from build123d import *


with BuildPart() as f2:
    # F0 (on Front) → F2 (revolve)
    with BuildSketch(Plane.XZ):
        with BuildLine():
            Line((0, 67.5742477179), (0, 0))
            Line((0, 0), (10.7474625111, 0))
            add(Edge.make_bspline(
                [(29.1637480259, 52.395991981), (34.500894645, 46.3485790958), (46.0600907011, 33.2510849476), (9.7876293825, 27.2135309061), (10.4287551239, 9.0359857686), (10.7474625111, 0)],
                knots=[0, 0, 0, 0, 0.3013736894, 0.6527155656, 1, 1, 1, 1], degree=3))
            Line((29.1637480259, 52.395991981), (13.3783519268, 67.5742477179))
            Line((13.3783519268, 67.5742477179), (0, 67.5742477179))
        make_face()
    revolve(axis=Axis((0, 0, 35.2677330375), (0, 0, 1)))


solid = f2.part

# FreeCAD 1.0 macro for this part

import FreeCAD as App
import Part
import Sketcher
from FreeCAD import Vector
Q = App.Units.Quantity

doc = App.newDocument("Part")
body = doc.addObject("PartDesign::Body", "Body")

sketch1 = body.newObject("Sketcher::SketchObject", "Sketch")
sketch1.AttachmentSupport = (doc.getObject("XZ_Plane"), [""])
sketch1.MapMode = "FlatFace"
sketch1.addGeometry(Part.LineSegment(Vector(0, 67.574248, 0), Vector(0, 0, 0)), False)
sketch1.addGeometry(Part.LineSegment(Vector(0, 0, 0), Vector(10.747463, 0, 0)), False)
sketch1.addGeometry(Part.BSplineCurve([Vector(29.163748, 52.395992, 0), Vector(34.500895, 46.348579, 0), Vector(46.060091, 33.251085, 0), Vector(9.787629, 27.213531, 0), Vector(10.428755, 9.035986, 0), Vector(10.747463, 0, 0)], [4, 1, 1, 4], [0, 0.301373689, 0.652715566, 1], False, 3, [1, 1, 1, 1, 1, 1], False), False)
sketch1.addGeometry(Part.LineSegment(Vector(29.163748, 52.395992, 0), Vector(13.378352, 67.574248, 0)), False)
sketch1.addGeometry(Part.LineSegment(Vector(13.378352, 67.574248, 0), Vector(0, 67.574248, 0)), False)
sketch1.addConstraint(Sketcher.Constraint("Block", 2))
sketch1.addConstraint(Sketcher.Constraint("Coincident", 0, 2, 1, 1))
sketch1.addConstraint(Sketcher.Constraint("Coincident", 1, 2, 2, 2))
sketch1.addConstraint(Sketcher.Constraint("Coincident", 2, 1, 3, 1))
sketch1.addConstraint(Sketcher.Constraint("Coincident", 3, 2, 4, 1))
sketch1.addConstraint(Sketcher.Constraint("Coincident", 4, 2, 0, 1))
sketch1.addConstraint(Sketcher.Constraint("Vertical", 0))
sketch1.addConstraint(Sketcher.Constraint("Horizontal", 1))
sketch1.addConstraint(Sketcher.Constraint("Horizontal", 4))
sketch1.addConstraint(Sketcher.Constraint("PointOnObject", 4, 2, -2))
sketch1.addConstraint(Sketcher.Constraint("DistanceX", 4, 2, 4, 1, Q("13.378352 mm")))
sketch1.addConstraint(Sketcher.Constraint("DistanceY", 0, 2, 0, 1, Q("67.574248 mm")))
revolution = body.newObject("PartDesign::Revolution", "Revolution")
revolution.Profile = sketch1
revolution.ReferenceAxis = (sketch1, ["V_Axis"])
revolution.Angle = 360

doc.recompute()
